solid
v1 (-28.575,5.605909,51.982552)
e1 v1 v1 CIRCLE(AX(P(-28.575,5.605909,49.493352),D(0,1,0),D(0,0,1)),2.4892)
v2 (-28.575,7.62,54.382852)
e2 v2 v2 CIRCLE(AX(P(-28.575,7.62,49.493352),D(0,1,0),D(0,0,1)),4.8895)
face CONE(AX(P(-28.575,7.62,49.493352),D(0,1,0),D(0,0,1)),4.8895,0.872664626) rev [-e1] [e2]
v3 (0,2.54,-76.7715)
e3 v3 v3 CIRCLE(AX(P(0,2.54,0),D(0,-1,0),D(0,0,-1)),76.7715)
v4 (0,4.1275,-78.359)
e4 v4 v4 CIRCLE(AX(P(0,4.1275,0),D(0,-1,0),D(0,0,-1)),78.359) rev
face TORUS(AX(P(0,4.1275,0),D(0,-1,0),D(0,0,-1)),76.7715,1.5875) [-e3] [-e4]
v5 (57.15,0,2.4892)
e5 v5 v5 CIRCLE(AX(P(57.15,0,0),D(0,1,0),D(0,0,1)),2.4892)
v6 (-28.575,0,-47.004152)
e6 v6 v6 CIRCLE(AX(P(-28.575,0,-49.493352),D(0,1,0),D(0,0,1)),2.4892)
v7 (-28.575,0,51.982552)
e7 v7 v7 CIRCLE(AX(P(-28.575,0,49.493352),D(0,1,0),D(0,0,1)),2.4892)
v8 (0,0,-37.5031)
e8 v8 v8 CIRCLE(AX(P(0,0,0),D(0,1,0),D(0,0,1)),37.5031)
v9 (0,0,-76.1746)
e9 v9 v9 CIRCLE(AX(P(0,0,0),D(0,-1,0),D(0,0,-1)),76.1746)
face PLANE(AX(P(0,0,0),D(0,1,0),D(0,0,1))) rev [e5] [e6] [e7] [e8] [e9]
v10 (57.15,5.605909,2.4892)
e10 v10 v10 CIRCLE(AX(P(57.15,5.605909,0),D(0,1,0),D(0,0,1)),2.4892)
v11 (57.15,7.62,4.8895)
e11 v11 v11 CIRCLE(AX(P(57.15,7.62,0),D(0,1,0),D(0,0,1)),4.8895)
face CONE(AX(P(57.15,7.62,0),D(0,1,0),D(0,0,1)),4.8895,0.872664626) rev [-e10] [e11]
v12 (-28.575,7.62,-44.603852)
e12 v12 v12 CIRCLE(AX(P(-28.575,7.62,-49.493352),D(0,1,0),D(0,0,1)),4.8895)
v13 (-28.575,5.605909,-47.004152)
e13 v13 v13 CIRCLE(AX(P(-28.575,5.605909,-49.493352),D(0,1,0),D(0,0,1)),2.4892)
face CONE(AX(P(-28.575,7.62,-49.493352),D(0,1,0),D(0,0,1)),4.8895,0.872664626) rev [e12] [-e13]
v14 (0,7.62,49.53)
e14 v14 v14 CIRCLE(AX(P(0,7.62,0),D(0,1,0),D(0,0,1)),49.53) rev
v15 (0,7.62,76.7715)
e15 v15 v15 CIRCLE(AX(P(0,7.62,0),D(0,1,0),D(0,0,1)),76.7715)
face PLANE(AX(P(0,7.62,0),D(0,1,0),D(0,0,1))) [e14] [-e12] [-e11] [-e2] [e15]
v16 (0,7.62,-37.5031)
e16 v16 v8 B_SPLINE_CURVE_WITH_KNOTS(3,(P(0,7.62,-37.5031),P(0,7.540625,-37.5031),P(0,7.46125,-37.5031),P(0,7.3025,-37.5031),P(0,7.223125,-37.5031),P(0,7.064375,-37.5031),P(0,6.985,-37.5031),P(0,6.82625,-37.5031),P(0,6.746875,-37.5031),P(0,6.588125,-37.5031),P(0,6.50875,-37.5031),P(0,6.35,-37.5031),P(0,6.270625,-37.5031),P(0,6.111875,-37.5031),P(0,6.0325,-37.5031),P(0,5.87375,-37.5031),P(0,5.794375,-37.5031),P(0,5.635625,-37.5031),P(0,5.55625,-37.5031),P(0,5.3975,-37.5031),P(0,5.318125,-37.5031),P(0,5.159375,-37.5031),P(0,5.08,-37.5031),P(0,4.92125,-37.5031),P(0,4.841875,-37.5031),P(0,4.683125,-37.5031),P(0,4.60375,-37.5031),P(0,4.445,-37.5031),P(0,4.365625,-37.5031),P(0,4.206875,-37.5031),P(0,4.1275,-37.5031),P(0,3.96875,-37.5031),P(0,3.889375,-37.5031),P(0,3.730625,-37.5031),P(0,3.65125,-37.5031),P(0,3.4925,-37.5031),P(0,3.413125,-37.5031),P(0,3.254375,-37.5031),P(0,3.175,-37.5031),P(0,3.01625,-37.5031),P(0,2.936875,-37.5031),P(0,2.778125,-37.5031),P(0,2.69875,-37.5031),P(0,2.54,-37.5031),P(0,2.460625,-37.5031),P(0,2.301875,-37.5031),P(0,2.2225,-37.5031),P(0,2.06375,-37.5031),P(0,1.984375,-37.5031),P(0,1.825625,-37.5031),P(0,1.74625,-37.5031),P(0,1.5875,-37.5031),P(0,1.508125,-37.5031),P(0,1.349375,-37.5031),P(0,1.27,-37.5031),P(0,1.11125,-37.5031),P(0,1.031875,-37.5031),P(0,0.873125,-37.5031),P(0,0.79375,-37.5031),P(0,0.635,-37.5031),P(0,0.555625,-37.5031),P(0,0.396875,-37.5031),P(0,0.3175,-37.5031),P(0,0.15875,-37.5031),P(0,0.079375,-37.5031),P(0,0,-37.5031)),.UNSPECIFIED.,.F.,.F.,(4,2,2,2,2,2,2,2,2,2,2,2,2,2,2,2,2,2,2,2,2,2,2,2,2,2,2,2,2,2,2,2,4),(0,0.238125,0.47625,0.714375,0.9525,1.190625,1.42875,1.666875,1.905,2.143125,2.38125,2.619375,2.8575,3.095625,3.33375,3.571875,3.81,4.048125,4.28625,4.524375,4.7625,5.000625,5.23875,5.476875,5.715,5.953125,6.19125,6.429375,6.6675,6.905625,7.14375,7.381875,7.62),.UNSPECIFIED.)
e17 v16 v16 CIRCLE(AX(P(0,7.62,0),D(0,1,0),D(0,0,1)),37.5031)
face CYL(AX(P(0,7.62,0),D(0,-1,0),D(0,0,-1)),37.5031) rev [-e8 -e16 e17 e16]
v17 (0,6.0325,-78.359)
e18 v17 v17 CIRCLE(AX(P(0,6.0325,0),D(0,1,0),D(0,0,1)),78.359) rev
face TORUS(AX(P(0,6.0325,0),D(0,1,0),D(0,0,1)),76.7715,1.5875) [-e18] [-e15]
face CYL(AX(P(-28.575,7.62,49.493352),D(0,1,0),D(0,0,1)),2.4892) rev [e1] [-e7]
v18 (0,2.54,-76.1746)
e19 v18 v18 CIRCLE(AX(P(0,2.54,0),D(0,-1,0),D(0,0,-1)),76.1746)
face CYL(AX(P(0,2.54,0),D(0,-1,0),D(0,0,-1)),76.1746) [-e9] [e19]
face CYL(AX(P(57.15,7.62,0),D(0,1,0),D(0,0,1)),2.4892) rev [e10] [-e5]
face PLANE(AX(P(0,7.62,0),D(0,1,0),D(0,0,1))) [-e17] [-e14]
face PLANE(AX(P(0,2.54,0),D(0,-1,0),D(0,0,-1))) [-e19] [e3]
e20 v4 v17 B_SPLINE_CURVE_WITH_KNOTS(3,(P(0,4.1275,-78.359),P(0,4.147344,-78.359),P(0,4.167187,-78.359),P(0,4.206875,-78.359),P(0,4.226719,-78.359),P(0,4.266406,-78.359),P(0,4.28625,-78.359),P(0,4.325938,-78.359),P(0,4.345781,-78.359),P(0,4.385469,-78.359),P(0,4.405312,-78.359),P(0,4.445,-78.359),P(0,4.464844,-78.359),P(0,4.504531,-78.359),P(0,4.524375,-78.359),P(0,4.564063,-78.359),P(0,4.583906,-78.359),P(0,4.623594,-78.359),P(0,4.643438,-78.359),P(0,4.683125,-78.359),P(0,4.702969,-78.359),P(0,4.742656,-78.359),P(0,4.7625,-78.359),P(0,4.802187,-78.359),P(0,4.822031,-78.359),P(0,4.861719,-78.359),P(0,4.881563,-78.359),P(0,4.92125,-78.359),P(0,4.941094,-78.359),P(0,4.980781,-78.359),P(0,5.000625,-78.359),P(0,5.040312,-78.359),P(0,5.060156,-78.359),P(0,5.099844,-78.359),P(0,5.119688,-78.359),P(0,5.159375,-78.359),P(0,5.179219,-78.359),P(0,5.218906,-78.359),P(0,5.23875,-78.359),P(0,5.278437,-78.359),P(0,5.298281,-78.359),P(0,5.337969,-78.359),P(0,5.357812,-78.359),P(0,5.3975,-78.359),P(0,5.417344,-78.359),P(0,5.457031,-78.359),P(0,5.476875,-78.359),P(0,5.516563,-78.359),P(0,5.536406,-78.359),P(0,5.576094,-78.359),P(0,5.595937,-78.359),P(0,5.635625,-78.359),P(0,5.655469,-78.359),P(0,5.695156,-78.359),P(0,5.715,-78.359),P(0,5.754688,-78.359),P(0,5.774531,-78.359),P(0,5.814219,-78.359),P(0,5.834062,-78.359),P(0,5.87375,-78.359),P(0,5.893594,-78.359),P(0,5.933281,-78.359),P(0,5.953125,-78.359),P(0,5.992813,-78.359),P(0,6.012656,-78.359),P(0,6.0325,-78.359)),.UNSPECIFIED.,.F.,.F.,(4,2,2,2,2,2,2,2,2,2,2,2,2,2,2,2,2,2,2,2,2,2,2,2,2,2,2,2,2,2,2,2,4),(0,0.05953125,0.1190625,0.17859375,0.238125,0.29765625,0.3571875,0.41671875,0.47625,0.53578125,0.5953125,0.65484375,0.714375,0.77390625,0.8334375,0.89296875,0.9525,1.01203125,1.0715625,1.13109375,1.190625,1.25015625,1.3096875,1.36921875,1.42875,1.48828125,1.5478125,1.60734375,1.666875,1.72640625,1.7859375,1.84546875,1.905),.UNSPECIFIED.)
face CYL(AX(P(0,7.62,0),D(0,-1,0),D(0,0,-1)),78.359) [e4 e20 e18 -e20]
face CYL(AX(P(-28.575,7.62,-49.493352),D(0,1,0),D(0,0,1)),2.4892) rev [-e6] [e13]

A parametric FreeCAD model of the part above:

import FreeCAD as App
import Part
import Sketcher
Q = App.Units.Quantity


def edges_at(feature, points):
    """Names of the edges that pass closest to the given points."""
    edges = feature.Shape.Edges
    near = lambda p: min(range(len(edges)), key=lambda i: edges[i].distToShape(Part.Vertex(*p))[0])
    return sorted({f"Edge{near(p) + 1}" for p in points})

doc = App.newDocument("Part")
body = doc.addObject("PartDesign::Body", "Body")

# Sketch on XZ plane
sketch1 = body.newObject("Sketcher::SketchObject", "Sketch")
sketch1.AttachmentSupport = (doc.getObject("XZ_Plane"), [""])
sketch1.MapMode = "FlatFace"
sketch1.addGeometry(Part.Circle(App.Vector(0, 0, 0), App.Vector(0, 0, 1), 78.359), False)
sketch1.addGeometry(Part.Circle(App.Vector(0, 0, 0), App.Vector(0, 0, 1), 37.5031), False)
sketch1.addConstraint(Sketcher.Constraint("Coincident", 0, 3, -1, 1))
sketch1.addConstraint(Sketcher.Constraint("Coincident", 1, 3, -1, 1))
sketch1.addConstraint(Sketcher.Constraint("Diameter", 0, Q("6.17 in")))
sketch1.addConstraint(Sketcher.Constraint("Diameter", 1, Q("2.953 in")))
pad1 = body.newObject("PartDesign::Pad", "Pad")
pad1.Profile = sketch1
pad1.Length = Q("0.3 in")
pad1.Reversed = True

# Sketch on XZ plane
sketch2 = body.newObject("Sketcher::SketchObject", "Sketch001")
sketch2.AttachmentSupport = (doc.getObject("XZ_Plane"), [""])
sketch2.MapMode = "FlatFace"
sketch2.AttachmentOffset = App.Placement(App.Vector(0, 0, -0.3 * 25.4), App.Rotation())
sketch2.addGeometry(Part.Circle(App.Vector(57.15, 0, 0), App.Vector(0, 0, 1), 2.4892), False)
sketch2.addConstraint(Sketcher.Constraint("PointOnObject", 0, 3, -1))
sketch2.addConstraint(Sketcher.Constraint("Diameter", 0, Q("0.196 in")))
sketch2.addConstraint(Sketcher.Constraint("DistanceX", -1, 1, 0, 3, Q("2.25 in")))
doc.recompute()
hole = body.newObject("PartDesign::Hole", "Hole")
hole.Profile = sketch2
hole.ThreadType = "None"
hole.Diameter = Q("0.196 in")
hole.DepthType = "ThroughAll"
hole.HoleCutType = "Countersink"
hole.HoleCutDiameter = Q("0.385 in")
hole.HoleCutCountersinkAngle = 100
hole.Reversed = True
doc.recompute()

polarpattern = body.newObject("PartDesign::PolarPattern", "PolarPattern")
polarpattern.Originals = [hole]
polarpattern.Axis = (doc.getObject("Y_Axis"), [""])
polarpattern.Angle = 360
polarpattern.Occurrences = 3
body.Tip = polarpattern

# Sketch on XZ plane
sketch3 = body.newObject("Sketcher::SketchObject", "Sketch002")
sketch3.AttachmentSupport = (doc.getObject("XZ_Plane"), [""])
sketch3.MapMode = "FlatFace"
sketch3.addGeometry(Part.Circle(App.Vector(0, 0, 0), App.Vector(0, 0, 1), 78.359), False)
sketch3.addGeometry(Part.Circle(App.Vector(0, 0, 0), App.Vector(0, 0, 1), 76.1746), False)
sketch3.addConstraint(Sketcher.Constraint("Coincident", 0, 3, -1, 1))
sketch3.addConstraint(Sketcher.Constraint("Coincident", 1, 3, -1, 1))
sketch3.addConstraint(Sketcher.Constraint("Diameter", 0, Q("6.17 in")))
sketch3.addConstraint(Sketcher.Constraint("Diameter", 1, Q("5.998 in")))
pocket1 = body.newObject("PartDesign::Pocket", "Pocket")
pocket1.Profile = sketch3
pocket1.Length = Q("0.1 in")
doc.recompute()

fillet = body.newObject("PartDesign::Fillet", "Fillet")
fillet.Base = (pocket1, edges_at(pocket1, [(0, 2.54, 78.359), (0, 7.62, 78.359)]))
fillet.Radius = Q("0.0625 in")

doc.recompute()
